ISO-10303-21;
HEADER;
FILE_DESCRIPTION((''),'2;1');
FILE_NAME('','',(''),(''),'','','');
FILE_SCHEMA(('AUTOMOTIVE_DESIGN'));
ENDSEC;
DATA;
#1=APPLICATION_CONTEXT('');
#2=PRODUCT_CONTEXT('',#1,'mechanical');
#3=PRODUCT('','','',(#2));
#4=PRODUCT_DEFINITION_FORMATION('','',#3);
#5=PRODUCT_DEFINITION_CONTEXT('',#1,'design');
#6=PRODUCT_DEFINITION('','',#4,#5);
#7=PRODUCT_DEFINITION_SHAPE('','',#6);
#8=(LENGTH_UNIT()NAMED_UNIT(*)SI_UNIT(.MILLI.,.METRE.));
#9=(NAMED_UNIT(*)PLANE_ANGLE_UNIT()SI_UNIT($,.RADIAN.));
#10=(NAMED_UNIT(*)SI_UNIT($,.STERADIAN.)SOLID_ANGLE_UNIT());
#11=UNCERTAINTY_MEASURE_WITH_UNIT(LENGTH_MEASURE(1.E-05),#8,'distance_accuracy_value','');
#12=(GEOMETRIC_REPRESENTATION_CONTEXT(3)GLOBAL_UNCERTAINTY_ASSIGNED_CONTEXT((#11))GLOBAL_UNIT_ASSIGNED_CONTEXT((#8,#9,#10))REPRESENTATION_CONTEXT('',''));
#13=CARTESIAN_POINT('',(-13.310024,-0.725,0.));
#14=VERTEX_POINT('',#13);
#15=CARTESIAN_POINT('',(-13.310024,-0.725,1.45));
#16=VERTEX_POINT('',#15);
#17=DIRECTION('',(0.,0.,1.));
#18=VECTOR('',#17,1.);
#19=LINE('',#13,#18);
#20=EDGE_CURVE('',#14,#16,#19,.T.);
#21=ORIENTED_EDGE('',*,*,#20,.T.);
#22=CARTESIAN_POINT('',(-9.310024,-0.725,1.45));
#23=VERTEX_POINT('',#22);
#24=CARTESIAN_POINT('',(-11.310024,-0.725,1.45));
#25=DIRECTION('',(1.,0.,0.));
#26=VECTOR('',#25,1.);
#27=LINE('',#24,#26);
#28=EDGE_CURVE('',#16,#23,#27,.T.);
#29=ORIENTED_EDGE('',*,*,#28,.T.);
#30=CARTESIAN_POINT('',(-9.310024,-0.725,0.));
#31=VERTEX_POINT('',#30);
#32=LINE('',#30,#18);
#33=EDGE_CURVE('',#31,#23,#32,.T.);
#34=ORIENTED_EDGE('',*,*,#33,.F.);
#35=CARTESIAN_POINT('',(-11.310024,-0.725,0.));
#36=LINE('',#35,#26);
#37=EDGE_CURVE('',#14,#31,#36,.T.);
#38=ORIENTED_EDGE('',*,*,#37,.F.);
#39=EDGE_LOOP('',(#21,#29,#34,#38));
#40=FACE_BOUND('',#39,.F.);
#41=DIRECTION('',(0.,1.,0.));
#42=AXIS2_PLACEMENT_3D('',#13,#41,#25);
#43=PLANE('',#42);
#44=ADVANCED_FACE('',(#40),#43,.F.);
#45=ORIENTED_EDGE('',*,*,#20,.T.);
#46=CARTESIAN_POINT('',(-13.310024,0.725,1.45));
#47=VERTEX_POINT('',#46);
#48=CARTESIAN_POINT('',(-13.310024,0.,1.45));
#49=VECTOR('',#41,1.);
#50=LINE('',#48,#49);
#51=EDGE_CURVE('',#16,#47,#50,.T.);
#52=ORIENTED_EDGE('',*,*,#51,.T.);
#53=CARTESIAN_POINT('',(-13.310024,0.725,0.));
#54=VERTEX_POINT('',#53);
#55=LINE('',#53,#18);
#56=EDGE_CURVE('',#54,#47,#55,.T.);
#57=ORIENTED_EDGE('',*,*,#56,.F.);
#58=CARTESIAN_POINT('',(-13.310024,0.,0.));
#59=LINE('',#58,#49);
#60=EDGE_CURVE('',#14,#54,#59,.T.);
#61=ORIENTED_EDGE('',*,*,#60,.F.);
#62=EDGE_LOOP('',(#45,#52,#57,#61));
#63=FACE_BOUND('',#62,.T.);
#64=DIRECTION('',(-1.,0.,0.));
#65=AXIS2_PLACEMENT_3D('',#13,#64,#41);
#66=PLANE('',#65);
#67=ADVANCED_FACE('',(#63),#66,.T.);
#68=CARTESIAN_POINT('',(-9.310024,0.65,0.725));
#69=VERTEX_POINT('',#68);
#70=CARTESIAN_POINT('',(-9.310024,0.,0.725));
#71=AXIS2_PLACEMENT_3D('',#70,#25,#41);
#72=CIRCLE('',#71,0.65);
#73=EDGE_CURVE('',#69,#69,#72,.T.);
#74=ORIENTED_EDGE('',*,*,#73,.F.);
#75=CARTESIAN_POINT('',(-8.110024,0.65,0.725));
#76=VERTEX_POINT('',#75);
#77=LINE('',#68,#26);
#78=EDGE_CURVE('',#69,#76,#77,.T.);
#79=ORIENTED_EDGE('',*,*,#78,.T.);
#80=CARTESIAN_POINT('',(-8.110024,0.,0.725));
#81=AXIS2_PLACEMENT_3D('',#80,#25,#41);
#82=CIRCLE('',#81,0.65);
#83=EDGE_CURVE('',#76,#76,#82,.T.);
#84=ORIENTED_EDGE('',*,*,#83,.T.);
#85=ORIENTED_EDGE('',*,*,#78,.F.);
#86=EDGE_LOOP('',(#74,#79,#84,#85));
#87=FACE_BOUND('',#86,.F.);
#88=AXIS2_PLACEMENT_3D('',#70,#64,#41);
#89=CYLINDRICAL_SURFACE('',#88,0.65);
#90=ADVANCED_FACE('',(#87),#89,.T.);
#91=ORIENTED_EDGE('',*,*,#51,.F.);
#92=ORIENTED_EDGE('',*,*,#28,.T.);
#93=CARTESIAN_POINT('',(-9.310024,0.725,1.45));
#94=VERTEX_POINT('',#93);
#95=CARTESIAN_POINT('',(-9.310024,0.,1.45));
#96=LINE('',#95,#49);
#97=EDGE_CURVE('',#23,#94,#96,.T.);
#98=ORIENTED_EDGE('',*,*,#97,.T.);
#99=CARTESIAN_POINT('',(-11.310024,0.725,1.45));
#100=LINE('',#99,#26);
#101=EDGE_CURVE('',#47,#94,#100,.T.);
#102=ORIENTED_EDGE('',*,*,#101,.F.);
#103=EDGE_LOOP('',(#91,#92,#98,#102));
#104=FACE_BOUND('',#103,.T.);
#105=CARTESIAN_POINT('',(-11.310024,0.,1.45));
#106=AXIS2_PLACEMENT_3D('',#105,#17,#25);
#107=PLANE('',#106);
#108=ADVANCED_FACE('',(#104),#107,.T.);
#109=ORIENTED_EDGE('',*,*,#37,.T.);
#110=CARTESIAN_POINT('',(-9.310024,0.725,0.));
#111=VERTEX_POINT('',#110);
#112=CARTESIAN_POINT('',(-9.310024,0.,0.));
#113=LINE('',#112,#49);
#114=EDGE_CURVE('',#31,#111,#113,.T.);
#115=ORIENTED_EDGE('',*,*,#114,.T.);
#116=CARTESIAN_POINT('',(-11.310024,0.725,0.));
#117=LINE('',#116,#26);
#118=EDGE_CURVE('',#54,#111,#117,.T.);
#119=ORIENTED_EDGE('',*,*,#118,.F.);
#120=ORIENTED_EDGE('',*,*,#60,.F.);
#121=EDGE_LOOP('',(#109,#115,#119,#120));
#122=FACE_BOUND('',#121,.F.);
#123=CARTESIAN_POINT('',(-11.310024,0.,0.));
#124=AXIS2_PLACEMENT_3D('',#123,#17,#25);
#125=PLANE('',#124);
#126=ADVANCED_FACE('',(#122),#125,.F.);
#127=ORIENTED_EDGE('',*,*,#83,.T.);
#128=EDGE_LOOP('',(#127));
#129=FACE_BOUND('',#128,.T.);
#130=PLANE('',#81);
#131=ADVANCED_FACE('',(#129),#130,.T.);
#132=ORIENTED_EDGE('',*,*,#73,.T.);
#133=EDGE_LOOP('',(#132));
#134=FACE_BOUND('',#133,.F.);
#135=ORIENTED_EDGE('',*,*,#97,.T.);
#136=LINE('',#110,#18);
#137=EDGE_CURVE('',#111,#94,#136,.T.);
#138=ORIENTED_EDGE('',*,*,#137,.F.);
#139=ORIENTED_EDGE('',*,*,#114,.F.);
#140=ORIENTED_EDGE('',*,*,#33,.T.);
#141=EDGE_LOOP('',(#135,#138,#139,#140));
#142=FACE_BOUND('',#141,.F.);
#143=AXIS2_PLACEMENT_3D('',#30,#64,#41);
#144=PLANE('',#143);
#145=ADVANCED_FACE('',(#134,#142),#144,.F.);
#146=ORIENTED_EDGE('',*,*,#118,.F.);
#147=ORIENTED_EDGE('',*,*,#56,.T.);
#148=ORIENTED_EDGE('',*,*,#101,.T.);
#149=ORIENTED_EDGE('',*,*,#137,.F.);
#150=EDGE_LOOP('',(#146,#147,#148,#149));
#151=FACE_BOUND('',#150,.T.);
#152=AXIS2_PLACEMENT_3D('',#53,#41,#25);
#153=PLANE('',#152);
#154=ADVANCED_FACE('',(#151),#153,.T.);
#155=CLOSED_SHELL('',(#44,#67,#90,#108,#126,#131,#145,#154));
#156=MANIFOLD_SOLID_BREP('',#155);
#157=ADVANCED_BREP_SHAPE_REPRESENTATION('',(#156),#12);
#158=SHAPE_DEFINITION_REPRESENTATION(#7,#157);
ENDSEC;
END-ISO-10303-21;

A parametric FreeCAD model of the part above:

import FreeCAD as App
import Part
import Sketcher

V = App.Vector

doc = App.newDocument("Part")
params = doc.addObject("Spreadsheet::Sheet", "Params")
for row, (alias, value) in enumerate([
    ("sketch1_width", "4 mm"),
    ("sketch1_height", "1.45 mm"),
    ("pad1_length", "1.45 mm"),
    ("sketch2_diameter", "1.3 mm"),
    ("pad2_length", "1.2 mm"),
], start=1):
    params.set(f"A{row}", alias)
    params.set(f"B{row}", "=" + value)
    params.setAlias(f"B{row}", alias)

body = doc.addObject("PartDesign::Body", "Body")

# Sketch on XY plane
sketch1 = body.newObject("Sketcher::SketchObject", "Sketch")
sketch1.AttachmentSupport = (doc.getObject("XY_Plane"), [""])
sketch1.MapMode = "FlatFace"
sketch1.addGeometry(Part.LineSegment(V(-13.3, 0.7, 0), V(-13.3, -0.7, 0)), False)
sketch1.addGeometry(Part.LineSegment(V(-13.3, -0.7, 0), V(-9.3, -0.7, 0)), False)
sketch1.addGeometry(Part.LineSegment(V(-9.3, -0.7, 0), V(-9.3, 0.7, 0)), False)
sketch1.addGeometry(Part.LineSegment(V(-9.3, 0.7, 0), V(-13.3, 0.7, 0)), False)
sketch1.addConstraint(Sketcher.Constraint("Coincident", 0, 2, 1, 1))
sketch1.addConstraint(Sketcher.Constraint("Coincident", 1, 2, 2, 1))
sketch1.addConstraint(Sketcher.Constraint("Coincident", 2, 2, 3, 1))
sketch1.addConstraint(Sketcher.Constraint("Coincident", 3, 2, 0, 1))
sketch1.addConstraint(Sketcher.Constraint("Vertical", 0))
sketch1.addConstraint(Sketcher.Constraint("Horizontal", 1))
sketch1.addConstraint(Sketcher.Constraint("Vertical", 2))
sketch1.addConstraint(Sketcher.Constraint("Horizontal", 3))
sketch1.addConstraint(Sketcher.Constraint("DistanceX", 1, 1, 1, 2, 4.0))
sketch1.addConstraint(Sketcher.Constraint("DistanceY", 0, 2, 0, 1, 1.45))
sketch1.addConstraint(Sketcher.Constraint("DistanceY", 0, 2, -1, 1, 0.725))
sketch1.addConstraint(Sketcher.Constraint("DistanceX", 0, 2, -1, 1, 13.310024))
sketch1.setExpression("Constraints[8]", "Params.sketch1_width")
sketch1.setExpression("Constraints[9]", "Params.sketch1_height")
pad1 = body.newObject("PartDesign::Pad", "Pad")
pad1.Profile = sketch1
pad1.setExpression("Length", "Params.pad1_length")

# Sketch on YZ plane
sketch2 = body.newObject("Sketcher::SketchObject", "Sketch001")
sketch2.AttachmentSupport = (doc.getObject("YZ_Plane"), [""])
sketch2.MapMode = "FlatFace"
sketch2.AttachmentOffset = App.Placement(V(0, 0, -9.310024), App.Rotation())
sketch2.addGeometry(Part.Circle(V(0, 0.7, 0), V(0, 0, 1), 0.7), False)
sketch2.addConstraint(Sketcher.Constraint("PointOnObject", 0, 3, -2))
sketch2.addConstraint(Sketcher.Constraint("Diameter", 0, 1.3))
sketch2.addConstraint(Sketcher.Constraint("DistanceY", -1, 1, 0, 3, 0.725))
sketch2.setExpression("Constraints[1]", "Params.sketch2_diameter")
pad2 = body.newObject("PartDesign::Pad", "Pad001")
pad2.Profile = sketch2
pad2.setExpression("Length", "Params.pad2_length")

doc.recompute()
